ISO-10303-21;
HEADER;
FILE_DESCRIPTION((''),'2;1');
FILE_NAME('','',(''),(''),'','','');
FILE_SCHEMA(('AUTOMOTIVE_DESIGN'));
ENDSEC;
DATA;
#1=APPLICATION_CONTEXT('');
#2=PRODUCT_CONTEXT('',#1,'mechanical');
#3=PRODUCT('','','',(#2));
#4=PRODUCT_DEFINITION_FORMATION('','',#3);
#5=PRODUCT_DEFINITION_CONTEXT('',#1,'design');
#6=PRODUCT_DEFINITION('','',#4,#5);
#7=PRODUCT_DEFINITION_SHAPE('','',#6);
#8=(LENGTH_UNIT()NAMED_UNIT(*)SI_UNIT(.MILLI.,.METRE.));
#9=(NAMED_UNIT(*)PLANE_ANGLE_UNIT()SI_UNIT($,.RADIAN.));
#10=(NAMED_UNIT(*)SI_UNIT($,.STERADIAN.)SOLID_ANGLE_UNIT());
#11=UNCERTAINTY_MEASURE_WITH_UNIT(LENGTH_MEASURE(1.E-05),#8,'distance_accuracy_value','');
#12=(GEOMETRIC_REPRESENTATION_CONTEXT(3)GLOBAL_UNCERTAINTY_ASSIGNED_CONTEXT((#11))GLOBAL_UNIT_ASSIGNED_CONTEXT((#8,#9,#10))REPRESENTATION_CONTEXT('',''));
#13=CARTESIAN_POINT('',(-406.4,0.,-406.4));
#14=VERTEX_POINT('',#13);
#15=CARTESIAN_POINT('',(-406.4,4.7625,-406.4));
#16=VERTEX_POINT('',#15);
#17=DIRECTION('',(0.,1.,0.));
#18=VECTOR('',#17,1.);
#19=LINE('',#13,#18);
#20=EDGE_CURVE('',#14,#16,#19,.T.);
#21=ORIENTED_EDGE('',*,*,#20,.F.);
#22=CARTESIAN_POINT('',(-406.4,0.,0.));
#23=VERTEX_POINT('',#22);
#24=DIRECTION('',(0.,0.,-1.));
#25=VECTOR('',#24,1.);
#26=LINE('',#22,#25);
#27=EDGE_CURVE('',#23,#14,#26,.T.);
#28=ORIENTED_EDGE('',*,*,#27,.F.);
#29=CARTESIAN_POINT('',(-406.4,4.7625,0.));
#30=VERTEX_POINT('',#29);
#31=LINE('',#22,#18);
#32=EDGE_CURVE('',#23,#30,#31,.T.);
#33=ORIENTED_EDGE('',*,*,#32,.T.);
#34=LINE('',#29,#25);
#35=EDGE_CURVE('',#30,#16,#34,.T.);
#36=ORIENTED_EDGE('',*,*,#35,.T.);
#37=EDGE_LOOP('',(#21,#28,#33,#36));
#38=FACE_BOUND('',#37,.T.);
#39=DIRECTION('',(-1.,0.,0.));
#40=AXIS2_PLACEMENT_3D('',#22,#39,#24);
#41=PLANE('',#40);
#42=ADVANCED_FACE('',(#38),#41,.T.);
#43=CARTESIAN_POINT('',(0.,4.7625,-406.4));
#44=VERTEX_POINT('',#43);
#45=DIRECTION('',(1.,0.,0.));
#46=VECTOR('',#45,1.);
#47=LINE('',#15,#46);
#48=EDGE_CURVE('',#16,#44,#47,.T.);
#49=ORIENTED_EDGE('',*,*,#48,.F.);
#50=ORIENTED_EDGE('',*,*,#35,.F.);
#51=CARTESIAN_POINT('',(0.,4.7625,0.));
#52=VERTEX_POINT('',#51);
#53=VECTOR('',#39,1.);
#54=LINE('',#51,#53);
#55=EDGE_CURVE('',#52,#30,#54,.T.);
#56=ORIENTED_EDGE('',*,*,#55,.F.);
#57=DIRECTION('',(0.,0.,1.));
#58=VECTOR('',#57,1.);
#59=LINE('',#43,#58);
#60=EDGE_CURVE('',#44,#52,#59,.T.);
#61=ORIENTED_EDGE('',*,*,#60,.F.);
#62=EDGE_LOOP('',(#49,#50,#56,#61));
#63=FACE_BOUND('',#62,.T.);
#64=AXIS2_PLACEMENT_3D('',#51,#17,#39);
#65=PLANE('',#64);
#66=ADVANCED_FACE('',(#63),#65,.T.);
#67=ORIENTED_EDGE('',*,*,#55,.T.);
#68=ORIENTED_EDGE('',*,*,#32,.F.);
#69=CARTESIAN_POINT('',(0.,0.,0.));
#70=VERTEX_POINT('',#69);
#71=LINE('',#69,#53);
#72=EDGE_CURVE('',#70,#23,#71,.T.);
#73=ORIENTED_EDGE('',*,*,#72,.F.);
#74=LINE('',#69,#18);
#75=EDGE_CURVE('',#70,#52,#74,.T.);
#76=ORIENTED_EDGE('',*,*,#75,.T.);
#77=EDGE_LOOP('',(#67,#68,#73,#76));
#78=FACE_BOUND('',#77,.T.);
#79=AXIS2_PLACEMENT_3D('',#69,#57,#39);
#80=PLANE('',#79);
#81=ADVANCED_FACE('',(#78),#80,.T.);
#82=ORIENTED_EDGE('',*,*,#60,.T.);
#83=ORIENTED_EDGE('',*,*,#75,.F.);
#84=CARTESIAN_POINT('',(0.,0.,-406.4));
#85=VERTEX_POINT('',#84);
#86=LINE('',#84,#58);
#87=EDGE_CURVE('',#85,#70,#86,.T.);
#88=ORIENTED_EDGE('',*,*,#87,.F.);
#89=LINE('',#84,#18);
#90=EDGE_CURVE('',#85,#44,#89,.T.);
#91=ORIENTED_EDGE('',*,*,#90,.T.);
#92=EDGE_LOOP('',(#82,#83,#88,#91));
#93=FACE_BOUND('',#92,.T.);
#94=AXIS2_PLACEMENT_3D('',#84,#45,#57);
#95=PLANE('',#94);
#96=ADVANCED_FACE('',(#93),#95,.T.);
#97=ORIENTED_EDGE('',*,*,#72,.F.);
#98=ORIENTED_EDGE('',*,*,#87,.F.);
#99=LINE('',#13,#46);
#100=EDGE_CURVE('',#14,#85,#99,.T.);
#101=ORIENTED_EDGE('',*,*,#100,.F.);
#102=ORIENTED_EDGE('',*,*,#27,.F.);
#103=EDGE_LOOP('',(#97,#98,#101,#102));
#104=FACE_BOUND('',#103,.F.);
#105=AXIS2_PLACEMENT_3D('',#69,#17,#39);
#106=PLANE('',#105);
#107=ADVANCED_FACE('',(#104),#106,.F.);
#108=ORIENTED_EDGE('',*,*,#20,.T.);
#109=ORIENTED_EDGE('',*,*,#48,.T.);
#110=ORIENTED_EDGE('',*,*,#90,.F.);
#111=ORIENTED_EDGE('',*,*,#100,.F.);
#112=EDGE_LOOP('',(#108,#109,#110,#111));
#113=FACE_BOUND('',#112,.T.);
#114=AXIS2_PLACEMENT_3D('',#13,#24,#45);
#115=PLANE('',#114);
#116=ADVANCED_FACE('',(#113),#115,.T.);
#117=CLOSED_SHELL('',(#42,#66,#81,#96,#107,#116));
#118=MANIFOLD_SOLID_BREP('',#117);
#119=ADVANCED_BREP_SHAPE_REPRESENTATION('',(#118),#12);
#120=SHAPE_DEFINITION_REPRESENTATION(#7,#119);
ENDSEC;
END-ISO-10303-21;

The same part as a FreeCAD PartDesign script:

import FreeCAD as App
import Part
import Sketcher

V = App.Vector
Q = App.Units.Quantity

doc = App.newDocument("Part")
body = doc.addObject("PartDesign::Body", "Body")

# Sketch on XZ plane
sketch1 = body.newObject("Sketcher::SketchObject", "Sketch")
sketch1.AttachmentSupport = (doc.getObject("XZ_Plane"), [""])
sketch1.MapMode = "FlatFace"
sketch1.addGeometry([
    Part.LineSegment(V(-406, 0, 0), V(0, 0, 0)),
    Part.LineSegment(V(0, 0, 0), V(0, -406, 0)),
    Part.LineSegment(V(0, -406, 0), V(-406, -406, 0)),
    Part.LineSegment(V(-406, -406, 0), V(-406, 0, 0)),
], False)
sketch1.addConstraint([
    Sketcher.Constraint("Coincident", 0, 2, 1, 1),
    Sketcher.Constraint("Coincident", 1, 2, 2, 1),
    Sketcher.Constraint("Coincident", 2, 2, 3, 1),
    Sketcher.Constraint("Coincident", 3, 2, 0, 1),
    Sketcher.Constraint("Horizontal", 0),
    Sketcher.Constraint("Vertical", 1),
    Sketcher.Constraint("Horizontal", 2),
    Sketcher.Constraint("Vertical", 3),
    Sketcher.Constraint("Coincident", 0, 2, -1, 1),
    Sketcher.Constraint("Equal", 2, 1),
    Sketcher.Constraint("DistanceX", 0, 1, 0, 2, Q("16 in")),
])
pad1 = body.newObject("PartDesign::Pad", "Pad")
pad1.Profile = sketch1
pad1.Length = Q("0.1875 in")
pad1.Reversed = True

doc.recompute()
